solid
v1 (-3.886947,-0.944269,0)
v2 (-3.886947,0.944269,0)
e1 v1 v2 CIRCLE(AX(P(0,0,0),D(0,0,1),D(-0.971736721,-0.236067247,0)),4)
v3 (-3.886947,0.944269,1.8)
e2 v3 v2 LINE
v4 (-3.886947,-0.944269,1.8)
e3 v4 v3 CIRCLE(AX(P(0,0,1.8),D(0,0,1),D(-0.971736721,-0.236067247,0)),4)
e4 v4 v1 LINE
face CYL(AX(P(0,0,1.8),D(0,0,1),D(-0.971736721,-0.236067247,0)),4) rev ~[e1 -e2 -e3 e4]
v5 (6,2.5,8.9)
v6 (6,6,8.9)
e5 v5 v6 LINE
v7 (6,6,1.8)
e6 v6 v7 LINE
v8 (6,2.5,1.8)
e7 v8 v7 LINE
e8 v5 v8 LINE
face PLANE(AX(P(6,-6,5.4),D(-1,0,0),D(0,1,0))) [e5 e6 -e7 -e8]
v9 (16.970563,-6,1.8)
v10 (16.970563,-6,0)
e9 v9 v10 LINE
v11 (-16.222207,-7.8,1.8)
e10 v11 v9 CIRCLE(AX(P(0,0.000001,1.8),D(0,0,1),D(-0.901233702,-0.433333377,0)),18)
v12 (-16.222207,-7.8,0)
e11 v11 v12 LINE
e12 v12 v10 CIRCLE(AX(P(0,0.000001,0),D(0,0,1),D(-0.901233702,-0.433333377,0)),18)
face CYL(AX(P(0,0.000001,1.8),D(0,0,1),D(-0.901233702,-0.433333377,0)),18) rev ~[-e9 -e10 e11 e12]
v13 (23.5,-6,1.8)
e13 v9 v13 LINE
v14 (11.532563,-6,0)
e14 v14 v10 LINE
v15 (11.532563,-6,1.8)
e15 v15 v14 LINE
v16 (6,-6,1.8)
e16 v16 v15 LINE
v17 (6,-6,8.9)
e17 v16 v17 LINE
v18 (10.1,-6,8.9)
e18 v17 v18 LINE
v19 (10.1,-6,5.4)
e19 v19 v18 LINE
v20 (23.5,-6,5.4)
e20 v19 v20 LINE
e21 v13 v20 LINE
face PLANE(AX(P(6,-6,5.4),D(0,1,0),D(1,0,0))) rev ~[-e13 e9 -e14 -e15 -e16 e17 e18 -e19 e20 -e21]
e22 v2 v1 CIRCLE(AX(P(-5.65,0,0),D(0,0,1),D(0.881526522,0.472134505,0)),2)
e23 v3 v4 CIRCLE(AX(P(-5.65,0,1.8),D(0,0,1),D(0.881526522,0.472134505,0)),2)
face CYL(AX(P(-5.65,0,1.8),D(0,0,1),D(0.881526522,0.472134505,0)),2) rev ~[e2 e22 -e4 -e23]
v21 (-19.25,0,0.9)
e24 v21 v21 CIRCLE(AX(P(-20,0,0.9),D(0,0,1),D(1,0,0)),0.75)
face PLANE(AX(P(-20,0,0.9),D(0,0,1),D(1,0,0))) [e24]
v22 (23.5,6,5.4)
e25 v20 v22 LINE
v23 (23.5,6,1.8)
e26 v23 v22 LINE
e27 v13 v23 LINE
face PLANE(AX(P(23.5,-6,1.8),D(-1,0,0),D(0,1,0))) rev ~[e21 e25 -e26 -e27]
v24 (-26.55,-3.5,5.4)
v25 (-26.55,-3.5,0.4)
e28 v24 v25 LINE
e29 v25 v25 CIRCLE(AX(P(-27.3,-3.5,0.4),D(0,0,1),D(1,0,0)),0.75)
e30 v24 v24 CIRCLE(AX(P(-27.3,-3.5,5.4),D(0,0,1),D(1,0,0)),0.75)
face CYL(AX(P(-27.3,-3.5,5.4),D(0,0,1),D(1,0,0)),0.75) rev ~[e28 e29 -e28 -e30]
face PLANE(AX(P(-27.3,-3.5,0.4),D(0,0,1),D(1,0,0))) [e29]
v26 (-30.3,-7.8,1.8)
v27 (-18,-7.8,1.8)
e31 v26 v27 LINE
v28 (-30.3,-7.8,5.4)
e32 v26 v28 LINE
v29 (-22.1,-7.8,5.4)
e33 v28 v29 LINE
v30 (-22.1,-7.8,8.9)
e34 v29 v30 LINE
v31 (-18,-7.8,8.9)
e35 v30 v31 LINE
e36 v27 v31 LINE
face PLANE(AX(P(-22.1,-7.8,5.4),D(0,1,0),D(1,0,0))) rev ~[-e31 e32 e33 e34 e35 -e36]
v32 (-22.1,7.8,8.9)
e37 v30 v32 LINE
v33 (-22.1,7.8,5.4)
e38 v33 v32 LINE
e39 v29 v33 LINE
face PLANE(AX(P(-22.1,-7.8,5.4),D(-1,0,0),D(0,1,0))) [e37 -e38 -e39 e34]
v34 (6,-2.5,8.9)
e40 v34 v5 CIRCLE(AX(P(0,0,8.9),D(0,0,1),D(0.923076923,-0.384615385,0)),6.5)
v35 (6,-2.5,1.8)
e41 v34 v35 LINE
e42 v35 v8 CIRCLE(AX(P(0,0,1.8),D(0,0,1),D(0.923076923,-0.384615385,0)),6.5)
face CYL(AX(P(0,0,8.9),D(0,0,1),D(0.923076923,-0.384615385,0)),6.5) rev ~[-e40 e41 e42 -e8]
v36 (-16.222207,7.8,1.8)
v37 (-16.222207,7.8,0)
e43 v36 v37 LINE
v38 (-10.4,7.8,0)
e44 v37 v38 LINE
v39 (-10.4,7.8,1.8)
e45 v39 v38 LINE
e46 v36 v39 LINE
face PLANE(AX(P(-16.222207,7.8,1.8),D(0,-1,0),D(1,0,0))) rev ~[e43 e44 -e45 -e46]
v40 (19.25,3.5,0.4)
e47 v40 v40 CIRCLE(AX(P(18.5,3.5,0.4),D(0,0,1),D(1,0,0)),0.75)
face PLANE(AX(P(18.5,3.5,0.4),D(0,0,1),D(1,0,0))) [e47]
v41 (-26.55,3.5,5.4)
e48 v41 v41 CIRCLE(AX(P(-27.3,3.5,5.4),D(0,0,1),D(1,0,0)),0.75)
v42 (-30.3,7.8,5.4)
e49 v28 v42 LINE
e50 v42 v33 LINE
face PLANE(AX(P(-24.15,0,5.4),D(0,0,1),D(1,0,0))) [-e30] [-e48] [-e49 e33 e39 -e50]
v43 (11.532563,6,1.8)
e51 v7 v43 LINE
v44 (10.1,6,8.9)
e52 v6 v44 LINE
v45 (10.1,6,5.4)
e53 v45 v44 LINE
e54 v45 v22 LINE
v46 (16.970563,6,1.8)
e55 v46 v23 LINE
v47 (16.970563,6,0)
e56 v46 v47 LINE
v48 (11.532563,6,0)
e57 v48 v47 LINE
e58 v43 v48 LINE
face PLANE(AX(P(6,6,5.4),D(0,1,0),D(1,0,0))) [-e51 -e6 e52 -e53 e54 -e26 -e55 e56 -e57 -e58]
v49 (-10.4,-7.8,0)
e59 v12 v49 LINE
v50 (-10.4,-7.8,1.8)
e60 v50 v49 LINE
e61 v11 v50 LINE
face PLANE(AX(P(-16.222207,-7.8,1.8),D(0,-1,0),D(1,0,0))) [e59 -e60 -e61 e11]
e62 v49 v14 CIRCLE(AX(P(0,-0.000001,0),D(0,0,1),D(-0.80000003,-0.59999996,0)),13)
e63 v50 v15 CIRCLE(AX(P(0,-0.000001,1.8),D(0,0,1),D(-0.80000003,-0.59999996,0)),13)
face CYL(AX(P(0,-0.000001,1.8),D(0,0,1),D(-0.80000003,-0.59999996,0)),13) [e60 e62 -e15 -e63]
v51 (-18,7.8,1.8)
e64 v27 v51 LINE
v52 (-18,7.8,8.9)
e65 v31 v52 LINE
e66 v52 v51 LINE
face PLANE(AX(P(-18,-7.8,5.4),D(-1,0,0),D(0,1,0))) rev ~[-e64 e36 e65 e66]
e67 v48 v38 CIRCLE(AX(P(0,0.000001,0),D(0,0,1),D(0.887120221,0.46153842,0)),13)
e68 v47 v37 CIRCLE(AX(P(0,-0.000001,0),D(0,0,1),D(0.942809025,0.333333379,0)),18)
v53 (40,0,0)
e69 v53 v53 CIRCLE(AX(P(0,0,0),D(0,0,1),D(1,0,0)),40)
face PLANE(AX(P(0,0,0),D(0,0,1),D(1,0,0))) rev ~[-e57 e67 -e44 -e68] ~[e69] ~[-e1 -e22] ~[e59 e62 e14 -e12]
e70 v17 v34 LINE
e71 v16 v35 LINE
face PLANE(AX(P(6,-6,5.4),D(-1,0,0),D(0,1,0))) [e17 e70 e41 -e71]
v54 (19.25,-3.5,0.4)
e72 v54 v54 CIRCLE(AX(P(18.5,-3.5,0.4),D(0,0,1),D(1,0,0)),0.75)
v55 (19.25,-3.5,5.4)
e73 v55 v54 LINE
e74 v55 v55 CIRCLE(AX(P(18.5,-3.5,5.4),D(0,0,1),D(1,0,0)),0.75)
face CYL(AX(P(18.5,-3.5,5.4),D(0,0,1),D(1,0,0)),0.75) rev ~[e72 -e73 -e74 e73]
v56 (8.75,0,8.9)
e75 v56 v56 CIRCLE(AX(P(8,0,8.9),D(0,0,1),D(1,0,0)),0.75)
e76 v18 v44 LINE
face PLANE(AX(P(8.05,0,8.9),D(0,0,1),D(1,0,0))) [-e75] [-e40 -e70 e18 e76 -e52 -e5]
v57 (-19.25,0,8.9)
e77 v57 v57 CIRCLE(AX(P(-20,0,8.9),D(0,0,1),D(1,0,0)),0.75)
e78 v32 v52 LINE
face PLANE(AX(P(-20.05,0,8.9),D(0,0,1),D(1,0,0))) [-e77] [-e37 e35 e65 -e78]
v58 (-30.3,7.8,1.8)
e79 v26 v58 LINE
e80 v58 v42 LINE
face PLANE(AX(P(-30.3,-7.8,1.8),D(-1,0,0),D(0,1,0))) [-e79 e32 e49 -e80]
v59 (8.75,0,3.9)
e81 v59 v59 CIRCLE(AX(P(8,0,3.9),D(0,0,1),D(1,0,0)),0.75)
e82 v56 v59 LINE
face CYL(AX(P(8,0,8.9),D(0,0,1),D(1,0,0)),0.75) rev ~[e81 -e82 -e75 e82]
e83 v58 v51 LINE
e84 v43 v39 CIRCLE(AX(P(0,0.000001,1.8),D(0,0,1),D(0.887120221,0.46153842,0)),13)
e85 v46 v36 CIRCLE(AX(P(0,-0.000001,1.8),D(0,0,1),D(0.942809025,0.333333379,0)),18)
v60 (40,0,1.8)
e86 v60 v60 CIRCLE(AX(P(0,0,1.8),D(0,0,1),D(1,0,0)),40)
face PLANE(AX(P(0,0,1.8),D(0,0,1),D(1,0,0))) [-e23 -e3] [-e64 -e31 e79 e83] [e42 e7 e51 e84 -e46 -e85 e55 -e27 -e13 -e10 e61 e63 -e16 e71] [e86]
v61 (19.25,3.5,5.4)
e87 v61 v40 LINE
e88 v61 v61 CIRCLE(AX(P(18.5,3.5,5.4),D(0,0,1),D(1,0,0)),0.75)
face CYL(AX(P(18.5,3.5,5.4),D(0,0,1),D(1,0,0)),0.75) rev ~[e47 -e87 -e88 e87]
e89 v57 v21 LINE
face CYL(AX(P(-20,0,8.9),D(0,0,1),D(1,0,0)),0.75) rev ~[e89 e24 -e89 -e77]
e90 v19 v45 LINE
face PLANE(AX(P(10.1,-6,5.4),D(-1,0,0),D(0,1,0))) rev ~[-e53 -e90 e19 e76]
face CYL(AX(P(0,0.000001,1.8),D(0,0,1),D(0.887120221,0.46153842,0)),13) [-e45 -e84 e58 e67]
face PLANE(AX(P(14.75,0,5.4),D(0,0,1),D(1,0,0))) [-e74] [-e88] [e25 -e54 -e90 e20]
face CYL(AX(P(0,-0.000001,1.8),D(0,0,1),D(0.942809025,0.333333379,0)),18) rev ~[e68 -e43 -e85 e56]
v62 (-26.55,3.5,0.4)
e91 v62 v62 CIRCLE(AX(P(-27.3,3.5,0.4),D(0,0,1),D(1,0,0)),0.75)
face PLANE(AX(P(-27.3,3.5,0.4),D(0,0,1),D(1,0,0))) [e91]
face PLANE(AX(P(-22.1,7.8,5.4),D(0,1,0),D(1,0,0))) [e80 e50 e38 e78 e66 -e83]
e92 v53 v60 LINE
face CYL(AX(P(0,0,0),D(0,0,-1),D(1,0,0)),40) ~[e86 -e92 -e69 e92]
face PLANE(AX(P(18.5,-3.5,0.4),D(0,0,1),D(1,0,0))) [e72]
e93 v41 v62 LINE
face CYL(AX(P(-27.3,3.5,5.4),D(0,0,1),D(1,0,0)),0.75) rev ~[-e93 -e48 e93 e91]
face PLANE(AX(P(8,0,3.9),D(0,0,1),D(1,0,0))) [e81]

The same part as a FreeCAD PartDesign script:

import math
import FreeCAD as App
import Part
import Sketcher

V = App.Vector

doc = App.newDocument("Part")
params = doc.addObject("Spreadsheet::Sheet", "Params")
for row, (alias, value) in enumerate([
    ("sketch1_diameter", "80 mm"),
    ("pad1_length", "1.8 mm"),
    ("sketch2_radius", "4 mm"),
    ("sketch2_radius2", "2 mm"),
    ("sketch3_height", "12 mm"),
    ("sketch3_width", "17.5 mm"),
    ("sketch3_width2", "12.3 mm"),
    ("sketch3_height2", "15.6 mm"),
    ("pad2_length", "3.6 mm"),
    ("sketch4_height", "12 mm"),
    ("sketch4_width", "4.1 mm"),
    ("pad3_length", "3.5 mm"),
    ("sketch5_radius", "6.5 mm"),
    ("sketch5_height", "5 mm"),
    ("pocket2_length", "7.1 mm"),
    ("sketch6_diameter", "1.5 mm"),
    ("pocket3_length", "5 mm"),
    ("sketch7_diameter", "1.5 mm"),
    ("pocket4_length", "5 mm"),
    ("sketch8_width", "4.1 mm"),
    ("sketch8_height", "15.6 mm"),
    ("pad4_length", "3.5 mm"),
    ("sketch9_diameter", "1.5 mm"),
    ("pocket5_length", "8 mm"),
    ("sketch10_radius", "18 mm"),
    ("sketch10_radius2", "13 mm"),
], start=1):
    params.set(f"A{row}", alias)
    params.set(f"B{row}", "=" + value)
    params.setAlias(f"B{row}", alias)

body = doc.addObject("PartDesign::Body", "Body")

# Sketch on XY plane
sketch1 = doc.addObject("Sketcher::SketchObject", "Sketch")
body.addObject(sketch1)
sketch1.AttachmentSupport = (doc.XY_Plane, [""])
sketch1.MapMode = "FlatFace"
sketch1.addGeometry(Part.Circle(V(0, 0, 0), V(0, 0, 1), 40), False)
sketch1.addConstraint(Sketcher.Constraint("Coincident", 0, 3, -1, 1))
sketch1.addConstraint(Sketcher.Constraint("Diameter", 0, 80.0))
sketch1.setExpression("Constraints[1]", "Params.sketch1_diameter")
pad1 = doc.addObject("PartDesign::Pad", "Pad")
body.addObject(pad1)
pad1.Profile = sketch1
pad1.setExpression("Length", "Params.pad1_length")

# Sketch on XY plane
sketch2 = doc.addObject("Sketcher::SketchObject", "Sketch001")
body.addObject(sketch2)
sketch2.AttachmentSupport = (doc.XY_Plane, [""])
sketch2.MapMode = "FlatFace"
sketch2.AttachmentOffset = App.Placement(V(0, 0, 1.8), App.Rotation())
sketch2.addGeometry(Part.ArcOfCircle(Part.Circle(V(0, 0, 0), V(0, 0, 1), 4), math.radians(-166), math.radians(166)), False)
sketch2.addGeometry(Part.ArcOfCircle(Part.Circle(V(-5.7, 0, 0), V(0, 0, 1), 2), math.radians(28), math.radians(332)), False)
sketch2.addConstraint(Sketcher.Constraint("Coincident", 0, 1, 1, 2))
sketch2.addConstraint(Sketcher.Constraint("Coincident", 1, 1, 0, 2))
sketch2.addConstraint(Sketcher.Constraint("Coincident", 0, 3, -1, 1))
sketch2.addConstraint(Sketcher.Constraint("PointOnObject", 1, 3, -1))
sketch2.addConstraint(Sketcher.Constraint("Radius", 0, 4.0))
sketch2.addConstraint(Sketcher.Constraint("Radius", 1, 2.0))
sketch2.addConstraint(Sketcher.Constraint("DistanceX", 1, 3, -1, 1, 5.65))
sketch2.setExpression("Constraints[4]", "Params.sketch2_radius")
sketch2.setExpression("Constraints[5]", "Params.sketch2_radius2")
pocket1 = doc.addObject("PartDesign::Pocket", "Pocket")
body.addObject(pocket1)
pocket1.Profile = sketch2
pocket1.Type = "ThroughAll"

# Sketch on XY plane
sketch3 = doc.addObject("Sketcher::SketchObject", "Sketch002")
body.addObject(sketch3)
sketch3.AttachmentSupport = (doc.XY_Plane, [""])
sketch3.MapMode = "FlatFace"
sketch3.AttachmentOffset = App.Placement(V(0, 0, 1.8), App.Rotation())
sketch3.addGeometry(Part.LineSegment(V(6, 6, 0), V(6, -6, 0)), False)
sketch3.addGeometry(Part.LineSegment(V(6, -6, 0), V(24, -6, 0)), False)
sketch3.addGeometry(Part.LineSegment(V(24, -6, 0), V(24, 6, 0)), False)
sketch3.addGeometry(Part.LineSegment(V(24, 6, 0), V(6, 6, 0)), False)
sketch3.addGeometry(Part.LineSegment(V(-30, 8, 0), V(-30, -8, 0)), False)
sketch3.addGeometry(Part.LineSegment(V(-30, -8, 0), V(-18, -8, 0)), False)
sketch3.addGeometry(Part.LineSegment(V(-18, -8, 0), V(-18, 8, 0)), False)
sketch3.addGeometry(Part.LineSegment(V(-18, 8, 0), V(-30, 8, 0)), False)
sketch3.addConstraint(Sketcher.Constraint("Coincident", 0, 2, 1, 1))
sketch3.addConstraint(Sketcher.Constraint("Coincident", 1, 2, 2, 1))
sketch3.addConstraint(Sketcher.Constraint("Coincident", 2, 2, 3, 1))
sketch3.addConstraint(Sketcher.Constraint("Coincident", 3, 2, 0, 1))
sketch3.addConstraint(Sketcher.Constraint("Coincident", 4, 2, 5, 1))
sketch3.addConstraint(Sketcher.Constraint("Coincident", 5, 2, 6, 1))
sketch3.addConstraint(Sketcher.Constraint("Coincident", 6, 2, 7, 1))
sketch3.addConstraint(Sketcher.Constraint("Coincident", 7, 2, 4, 1))
sketch3.addConstraint(Sketcher.Constraint("Vertical", 0))
sketch3.addConstraint(Sketcher.Constraint("Horizontal", 1))
sketch3.addConstraint(Sketcher.Constraint("Vertical", 2))
sketch3.addConstraint(Sketcher.Constraint("Horizontal", 3))
sketch3.addConstraint(Sketcher.Constraint("Vertical", 4))
sketch3.addConstraint(Sketcher.Constraint("Horizontal", 5))
sketch3.addConstraint(Sketcher.Constraint("Vertical", 6))
sketch3.addConstraint(Sketcher.Constraint("Horizontal", 7))
sketch3.addConstraint(Sketcher.Constraint("DistanceY", 0, 2, 0, 1, 12.0))
sketch3.addConstraint(Sketcher.Constraint("DistanceX", 1, 1, 1, 2, 17.5))
sketch3.addConstraint(Sketcher.Constraint("DistanceX", 5, 1, 5, 2, 12.3))
sketch3.addConstraint(Sketcher.Constraint("DistanceY", 4, 2, 4, 1, 15.6))
sketch3.addConstraint(Sketcher.Constraint("DistanceX", -1, 1, 0, 2, 6.0))
sketch3.addConstraint(Sketcher.Constraint("DistanceY", 0, 2, -1, 1, 6.0))
sketch3.addConstraint(Sketcher.Constraint("DistanceX", 5, 2, -1, 1, 18.0))
sketch3.addConstraint(Sketcher.Constraint("DistanceY", 4, 2, -1, 1, 7.8))
sketch3.setExpression("Constraints[16]", "Params.sketch3_height")
sketch3.setExpression("Constraints[17]", "Params.sketch3_width")
sketch3.setExpression("Constraints[18]", "Params.sketch3_width2")
sketch3.setExpression("Constraints[19]", "Params.sketch3_height2")
pad2 = doc.addObject("PartDesign::Pad", "Pad001")
body.addObject(pad2)
pad2.Profile = sketch3
pad2.setExpression("Length", "Params.pad2_length")

# Sketch on XY plane
sketch4 = doc.addObject("Sketcher::SketchObject", "Sketch003")
body.addObject(sketch4)
sketch4.AttachmentSupport = (doc.XY_Plane, [""])
sketch4.MapMode = "FlatFace"
sketch4.AttachmentOffset = App.Placement(V(0, 0, 5.4), App.Rotation())
sketch4.addGeometry(Part.LineSegment(V(6, 6, 0), V(6, -6, 0)), False)
sketch4.addGeometry(Part.LineSegment(V(6, -6, 0), V(10.1, -6, 0)), False)
sketch4.addGeometry(Part.LineSegment(V(10.1, -6, 0), V(10.1, 6, 0)), False)
sketch4.addGeometry(Part.LineSegment(V(10.1, 6, 0), V(6, 6, 0)), False)
sketch4.addConstraint(Sketcher.Constraint("Coincident", 0, 2, 1, 1))
sketch4.addConstraint(Sketcher.Constraint("Coincident", 1, 2, 2, 1))
sketch4.addConstraint(Sketcher.Constraint("Coincident", 2, 2, 3, 1))
sketch4.addConstraint(Sketcher.Constraint("Coincident", 3, 2, 0, 1))
sketch4.addConstraint(Sketcher.Constraint("Vertical", 0))
sketch4.addConstraint(Sketcher.Constraint("Horizontal", 1))
sketch4.addConstraint(Sketcher.Constraint("Vertical", 2))
sketch4.addConstraint(Sketcher.Constraint("Horizontal", 3))
sketch4.addConstraint(Sketcher.Constraint("DistanceY", 0, 2, 0, 1, 12.0))
sketch4.addConstraint(Sketcher.Constraint("DistanceX", 1, 1, 1, 2, 4.1))
sketch4.addConstraint(Sketcher.Constraint("DistanceX", -1, 1, 0, 2, 6.0))
sketch4.addConstraint(Sketcher.Constraint("DistanceY", 0, 2, -1, 1, 6.0))
sketch4.setExpression("Constraints[8]", "Params.sketch4_height")
sketch4.setExpression("Constraints[9]", "Params.sketch4_width")
pad3 = doc.addObject("PartDesign::Pad", "Pad002")
body.addObject(pad3)
pad3.Profile = sketch4
pad3.setExpression("Length", "Params.pad3_length")

# Sketch on XY plane
sketch5 = doc.addObject("Sketcher::SketchObject", "Sketch004")
body.addObject(sketch5)
sketch5.AttachmentSupport = (doc.XY_Plane, [""])
sketch5.MapMode = "FlatFace"
sketch5.AttachmentOffset = App.Placement(V(0, 0, 8.9), App.Rotation())
sketch5.addGeometry(Part.ArcOfCircle(Part.Circle(V(0, 0, 0), V(0, 0, 1), 6), math.radians(-23), math.radians(23)), False)
sketch5.addGeometry(Part.LineSegment(V(6, 2, 0), V(6, -2, 0)), False)
sketch5.addConstraint(Sketcher.Constraint("Coincident", 0, 1, 1, 2))
sketch5.addConstraint(Sketcher.Constraint("Coincident", 1, 1, 0, 2))
sketch5.addConstraint(Sketcher.Constraint("Vertical", 1))
sketch5.addConstraint(Sketcher.Constraint("Coincident", 0, 3, -1, 1))
sketch5.addConstraint(Sketcher.Constraint("Radius", 0, 6.5))
sketch5.addConstraint(Sketcher.Constraint("DistanceY", 1, 2, 1, 1, 5.0))
sketch5.setExpression("Constraints[4]", "Params.sketch5_radius")
sketch5.setExpression("Constraints[5]", "Params.sketch5_height")
pocket2 = doc.addObject("PartDesign::Pocket", "Pocket001")
body.addObject(pocket2)
pocket2.Profile = sketch5
pocket2.setExpression("Length", "Params.pocket2_length")

# Sketch on XY plane
sketch6 = doc.addObject("Sketcher::SketchObject", "Sketch005")
body.addObject(sketch6)
sketch6.AttachmentSupport = (doc.XY_Plane, [""])
sketch6.MapMode = "FlatFace"
sketch6.AttachmentOffset = App.Placement(V(0, 0, 5.4), App.Rotation())
sketch6.addGeometry(Part.Circle(V(-27.3, 3.5, 0), V(0, 0, 1), 0.8), False)
sketch6.addGeometry(Part.Circle(V(-27.3, -3.5, 0), V(0, 0, 1), 0.8), False)
sketch6.addGeometry(Part.Circle(V(18.5, 3.5, 0), V(0, 0, 1), 0.8), False)
sketch6.addGeometry(Part.Circle(V(18.5, -3.5, 0), V(0, 0, 1), 0.8), False)
sketch6.addConstraint(Sketcher.Constraint("Equal", 0, 1))
sketch6.addConstraint(Sketcher.Constraint("Equal", 1, 2))
sketch6.addConstraint(Sketcher.Constraint("Equal", 2, 3))
sketch6.addConstraint(Sketcher.Constraint("Symmetric", 0, 3, 1, 3, -1))
sketch6.addConstraint(Sketcher.Constraint("Symmetric", 2, 3, 3, 3, -1))
sketch6.addConstraint(Sketcher.Constraint("Horizontal", 0, 3, 2, 3))
sketch6.addConstraint(Sketcher.Constraint("Diameter", 0, 1.5))
sketch6.addConstraint(Sketcher.Constraint("DistanceY", 1, 3, 0, 3, 7.0))
sketch6.addConstraint(Sketcher.Constraint("DistanceX", 0, 3, -1, 1, 27.3))
sketch6.addConstraint(Sketcher.Constraint("DistanceX", -1, 1, 2, 3, 18.5))
sketch6.setExpression("Constraints[6]", "Params.sketch6_diameter")
pocket3 = doc.addObject("PartDesign::Pocket", "Pocket002")
body.addObject(pocket3)
pocket3.Profile = sketch6
pocket3.setExpression("Length", "Params.pocket3_length")

# Sketch on XY plane
sketch7 = doc.addObject("Sketcher::SketchObject", "Sketch006")
body.addObject(sketch7)
sketch7.AttachmentSupport = (doc.XY_Plane, [""])
sketch7.MapMode = "FlatFace"
sketch7.AttachmentOffset = App.Placement(V(0, 0, 8.9), App.Rotation())
sketch7.addGeometry(Part.Circle(V(8, 0, 0), V(0, 0, 1), 0.8), False)
sketch7.addConstraint(Sketcher.Constraint("PointOnObject", 0, 3, -1))
sketch7.addConstraint(Sketcher.Constraint("Diameter", 0, 1.5))
sketch7.addConstraint(Sketcher.Constraint("DistanceX", -1, 1, 0, 3, 8.0))
sketch7.setExpression("Constraints[1]", "Params.sketch7_diameter")
pocket4 = doc.addObject("PartDesign::Pocket", "Pocket003")
body.addObject(pocket4)
pocket4.Profile = sketch7
pocket4.setExpression("Length", "Params.pocket4_length")

# Sketch on XY plane
sketch8 = doc.addObject("Sketcher::SketchObject", "Sketch007")
body.addObject(sketch8)
sketch8.AttachmentSupport = (doc.XY_Plane, [""])
sketch8.MapMode = "FlatFace"
sketch8.AttachmentOffset = App.Placement(V(0, 0, 5.4), App.Rotation())
sketch8.addGeometry(Part.LineSegment(V(-22.1, 7.8, 0), V(-22.1, -7.8, 0)), False)
sketch8.addGeometry(Part.LineSegment(V(-22.1, -7.8, 0), V(-18, -7.8, 0)), False)
sketch8.addGeometry(Part.LineSegment(V(-18, -7.8, 0), V(-18, 7.8, 0)), False)
sketch8.addGeometry(Part.LineSegment(V(-18, 7.8, 0), V(-22.1, 7.8, 0)), False)
sketch8.addConstraint(Sketcher.Constraint("Coincident", 0, 2, 1, 1))
sketch8.addConstraint(Sketcher.Constraint("Coincident", 1, 2, 2, 1))
sketch8.addConstraint(Sketcher.Constraint("Coincident", 2, 2, 3, 1))
sketch8.addConstraint(Sketcher.Constraint("Coincident", 3, 2, 0, 1))
sketch8.addConstraint(Sketcher.Constraint("Vertical", 0))
sketch8.addConstraint(Sketcher.Constraint("Horizontal", 1))
sketch8.addConstraint(Sketcher.Constraint("Vertical", 2))
sketch8.addConstraint(Sketcher.Constraint("Horizontal", 3))
sketch8.addConstraint(Sketcher.Constraint("DistanceX", 1, 1, 1, 2, 4.1))
sketch8.addConstraint(Sketcher.Constraint("DistanceY", 0, 2, 0, 1, 15.6))
sketch8.addConstraint(Sketcher.Constraint("DistanceX", 1, 2, -1, 1, 18.0))
sketch8.addConstraint(Sketcher.Constraint("DistanceY", 0, 2, -1, 1, 7.8))
sketch8.setExpression("Constraints[8]", "Params.sketch8_width")
sketch8.setExpression("Constraints[9]", "Params.sketch8_height")
pad4 = doc.addObject("PartDesign::Pad", "Pad003")
body.addObject(pad4)
pad4.Profile = sketch8
pad4.setExpression("Length", "Params.pad4_length")

# Sketch on XY plane
sketch9 = doc.addObject("Sketcher::SketchObject", "Sketch008")
body.addObject(sketch9)
sketch9.AttachmentSupport = (doc.XY_Plane, [""])
sketch9.MapMode = "FlatFace"
sketch9.AttachmentOffset = App.Placement(V(0, 0, 8.9), App.Rotation())
sketch9.addGeometry(Part.Circle(V(-20, 0, 0), V(0, 0, 1), 0.8), False)
sketch9.addConstraint(Sketcher.Constraint("PointOnObject", 0, 3, -1))
sketch9.addConstraint(Sketcher.Constraint("Diameter", 0, 1.5))
sketch9.addConstraint(Sketcher.Constraint("DistanceX", 0, 3, -1, 1, 20.0))
sketch9.setExpression("Constraints[1]", "Params.sketch9_diameter")
pocket5 = doc.addObject("PartDesign::Pocket", "Pocket004")
body.addObject(pocket5)
pocket5.Profile = sketch9
pocket5.setExpression("Length", "Params.pocket5_length")

# Sketch on XY plane
sketch10 = doc.addObject("Sketcher::SketchObject", "Sketch009")
body.addObject(sketch10)
sketch10.AttachmentSupport = (doc.XY_Plane, [""])
sketch10.MapMode = "FlatFace"
sketch10.AttachmentOffset = App.Placement(V(0, 0, 1.8), App.Rotation())
sketch10.addGeometry(Part.ArcOfCircle(Part.Circle(V(0, 0, 0), V(0, 0, 1), 18), math.radians(19), math.radians(154)), False)
sketch10.addGeometry(Part.LineSegment(V(-16, 8, 0), V(-10, 8, 0)), False)
sketch10.addGeometry(Part.ArcOfCircle(Part.Circle(V(0, 0, 0), V(0, 0, 1), 13), math.radians(27), math.radians(143)), False)
sketch10.addGeometry(Part.LineSegment(V(12, 6, 0), V(17, 6, 0)), False)
sketch10.addGeometry(Part.ArcOfCircle(Part.Circle(V(0, 0, 0), V(0, 0, 1), 13), math.radians(-143), math.radians(-27)), False)
sketch10.addGeometry(Part.LineSegment(V(-10, -8, 0), V(-16, -8, 0)), False)
sketch10.addGeometry(Part.ArcOfCircle(Part.Circle(V(0, 0, 0), V(0, 0, 1), 18), math.radians(-154), math.radians(-19)), False)
sketch10.addGeometry(Part.LineSegment(V(17, -6, 0), V(12, -6, 0)), False)
sketch10.addConstraint(Sketcher.Constraint("Coincident", 0, 2, 1, 1))
sketch10.addConstraint(Sketcher.Constraint("Coincident", 1, 2, 2, 2))
sketch10.addConstraint(Sketcher.Constraint("Coincident", 2, 1, 3, 1))
sketch10.addConstraint(Sketcher.Constraint("Coincident", 3, 2, 0, 1))
sketch10.addConstraint(Sketcher.Constraint("Coincident", 4, 1, 5, 1))
sketch10.addConstraint(Sketcher.Constraint("Coincident", 5, 2, 6, 1))
sketch10.addConstraint(Sketcher.Constraint("Coincident", 6, 2, 7, 1))
sketch10.addConstraint(Sketcher.Constraint("Coincident", 7, 2, 4, 2))
sketch10.addConstraint(Sketcher.Constraint("Horizontal", 1))
sketch10.addConstraint(Sketcher.Constraint("Horizontal", 3))
sketch10.addConstraint(Sketcher.Constraint("Horizontal", 5))
sketch10.addConstraint(Sketcher.Constraint("Horizontal", 7))
sketch10.addConstraint(Sketcher.Constraint("Coincident", 0, 3, -1, 1))
sketch10.addConstraint(Sketcher.Constraint("Coincident", 2, 3, -1, 1))
sketch10.addConstraint(Sketcher.Constraint("Coincident", 4, 3, -1, 1))
sketch10.addConstraint(Sketcher.Constraint("Coincident", 6, 3, -1, 1))
sketch10.addConstraint(Sketcher.Constraint("Equal", 2, 4))
sketch10.addConstraint(Sketcher.Constraint("Equal", 0, 6))
sketch10.addConstraint(Sketcher.Constraint("Vertical", 1, 2, 4, 1))
sketch10.addConstraint(Sketcher.Constraint("Vertical", 3, 2, 6, 2))
sketch10.addConstraint(Sketcher.Constraint("Radius", 0, 18.0))
sketch10.addConstraint(Sketcher.Constraint("Radius", 2, 13.0))
sketch10.addConstraint(Sketcher.Constraint("DistanceY", -1, 1, 2, 1, 6.0))
sketch10.addConstraint(Sketcher.Constraint("DistanceY", -1, 1, 0, 2, 7.8))
sketch10.setExpression("Constraints[20]", "Params.sketch10_radius")
sketch10.setExpression("Constraints[21]", "Params.sketch10_radius2")
pocket6 = doc.addObject("PartDesign::Pocket", "Pocket005")
body.addObject(pocket6)
pocket6.Profile = sketch10
pocket6.Type = "ThroughAll"

doc.recompute()
